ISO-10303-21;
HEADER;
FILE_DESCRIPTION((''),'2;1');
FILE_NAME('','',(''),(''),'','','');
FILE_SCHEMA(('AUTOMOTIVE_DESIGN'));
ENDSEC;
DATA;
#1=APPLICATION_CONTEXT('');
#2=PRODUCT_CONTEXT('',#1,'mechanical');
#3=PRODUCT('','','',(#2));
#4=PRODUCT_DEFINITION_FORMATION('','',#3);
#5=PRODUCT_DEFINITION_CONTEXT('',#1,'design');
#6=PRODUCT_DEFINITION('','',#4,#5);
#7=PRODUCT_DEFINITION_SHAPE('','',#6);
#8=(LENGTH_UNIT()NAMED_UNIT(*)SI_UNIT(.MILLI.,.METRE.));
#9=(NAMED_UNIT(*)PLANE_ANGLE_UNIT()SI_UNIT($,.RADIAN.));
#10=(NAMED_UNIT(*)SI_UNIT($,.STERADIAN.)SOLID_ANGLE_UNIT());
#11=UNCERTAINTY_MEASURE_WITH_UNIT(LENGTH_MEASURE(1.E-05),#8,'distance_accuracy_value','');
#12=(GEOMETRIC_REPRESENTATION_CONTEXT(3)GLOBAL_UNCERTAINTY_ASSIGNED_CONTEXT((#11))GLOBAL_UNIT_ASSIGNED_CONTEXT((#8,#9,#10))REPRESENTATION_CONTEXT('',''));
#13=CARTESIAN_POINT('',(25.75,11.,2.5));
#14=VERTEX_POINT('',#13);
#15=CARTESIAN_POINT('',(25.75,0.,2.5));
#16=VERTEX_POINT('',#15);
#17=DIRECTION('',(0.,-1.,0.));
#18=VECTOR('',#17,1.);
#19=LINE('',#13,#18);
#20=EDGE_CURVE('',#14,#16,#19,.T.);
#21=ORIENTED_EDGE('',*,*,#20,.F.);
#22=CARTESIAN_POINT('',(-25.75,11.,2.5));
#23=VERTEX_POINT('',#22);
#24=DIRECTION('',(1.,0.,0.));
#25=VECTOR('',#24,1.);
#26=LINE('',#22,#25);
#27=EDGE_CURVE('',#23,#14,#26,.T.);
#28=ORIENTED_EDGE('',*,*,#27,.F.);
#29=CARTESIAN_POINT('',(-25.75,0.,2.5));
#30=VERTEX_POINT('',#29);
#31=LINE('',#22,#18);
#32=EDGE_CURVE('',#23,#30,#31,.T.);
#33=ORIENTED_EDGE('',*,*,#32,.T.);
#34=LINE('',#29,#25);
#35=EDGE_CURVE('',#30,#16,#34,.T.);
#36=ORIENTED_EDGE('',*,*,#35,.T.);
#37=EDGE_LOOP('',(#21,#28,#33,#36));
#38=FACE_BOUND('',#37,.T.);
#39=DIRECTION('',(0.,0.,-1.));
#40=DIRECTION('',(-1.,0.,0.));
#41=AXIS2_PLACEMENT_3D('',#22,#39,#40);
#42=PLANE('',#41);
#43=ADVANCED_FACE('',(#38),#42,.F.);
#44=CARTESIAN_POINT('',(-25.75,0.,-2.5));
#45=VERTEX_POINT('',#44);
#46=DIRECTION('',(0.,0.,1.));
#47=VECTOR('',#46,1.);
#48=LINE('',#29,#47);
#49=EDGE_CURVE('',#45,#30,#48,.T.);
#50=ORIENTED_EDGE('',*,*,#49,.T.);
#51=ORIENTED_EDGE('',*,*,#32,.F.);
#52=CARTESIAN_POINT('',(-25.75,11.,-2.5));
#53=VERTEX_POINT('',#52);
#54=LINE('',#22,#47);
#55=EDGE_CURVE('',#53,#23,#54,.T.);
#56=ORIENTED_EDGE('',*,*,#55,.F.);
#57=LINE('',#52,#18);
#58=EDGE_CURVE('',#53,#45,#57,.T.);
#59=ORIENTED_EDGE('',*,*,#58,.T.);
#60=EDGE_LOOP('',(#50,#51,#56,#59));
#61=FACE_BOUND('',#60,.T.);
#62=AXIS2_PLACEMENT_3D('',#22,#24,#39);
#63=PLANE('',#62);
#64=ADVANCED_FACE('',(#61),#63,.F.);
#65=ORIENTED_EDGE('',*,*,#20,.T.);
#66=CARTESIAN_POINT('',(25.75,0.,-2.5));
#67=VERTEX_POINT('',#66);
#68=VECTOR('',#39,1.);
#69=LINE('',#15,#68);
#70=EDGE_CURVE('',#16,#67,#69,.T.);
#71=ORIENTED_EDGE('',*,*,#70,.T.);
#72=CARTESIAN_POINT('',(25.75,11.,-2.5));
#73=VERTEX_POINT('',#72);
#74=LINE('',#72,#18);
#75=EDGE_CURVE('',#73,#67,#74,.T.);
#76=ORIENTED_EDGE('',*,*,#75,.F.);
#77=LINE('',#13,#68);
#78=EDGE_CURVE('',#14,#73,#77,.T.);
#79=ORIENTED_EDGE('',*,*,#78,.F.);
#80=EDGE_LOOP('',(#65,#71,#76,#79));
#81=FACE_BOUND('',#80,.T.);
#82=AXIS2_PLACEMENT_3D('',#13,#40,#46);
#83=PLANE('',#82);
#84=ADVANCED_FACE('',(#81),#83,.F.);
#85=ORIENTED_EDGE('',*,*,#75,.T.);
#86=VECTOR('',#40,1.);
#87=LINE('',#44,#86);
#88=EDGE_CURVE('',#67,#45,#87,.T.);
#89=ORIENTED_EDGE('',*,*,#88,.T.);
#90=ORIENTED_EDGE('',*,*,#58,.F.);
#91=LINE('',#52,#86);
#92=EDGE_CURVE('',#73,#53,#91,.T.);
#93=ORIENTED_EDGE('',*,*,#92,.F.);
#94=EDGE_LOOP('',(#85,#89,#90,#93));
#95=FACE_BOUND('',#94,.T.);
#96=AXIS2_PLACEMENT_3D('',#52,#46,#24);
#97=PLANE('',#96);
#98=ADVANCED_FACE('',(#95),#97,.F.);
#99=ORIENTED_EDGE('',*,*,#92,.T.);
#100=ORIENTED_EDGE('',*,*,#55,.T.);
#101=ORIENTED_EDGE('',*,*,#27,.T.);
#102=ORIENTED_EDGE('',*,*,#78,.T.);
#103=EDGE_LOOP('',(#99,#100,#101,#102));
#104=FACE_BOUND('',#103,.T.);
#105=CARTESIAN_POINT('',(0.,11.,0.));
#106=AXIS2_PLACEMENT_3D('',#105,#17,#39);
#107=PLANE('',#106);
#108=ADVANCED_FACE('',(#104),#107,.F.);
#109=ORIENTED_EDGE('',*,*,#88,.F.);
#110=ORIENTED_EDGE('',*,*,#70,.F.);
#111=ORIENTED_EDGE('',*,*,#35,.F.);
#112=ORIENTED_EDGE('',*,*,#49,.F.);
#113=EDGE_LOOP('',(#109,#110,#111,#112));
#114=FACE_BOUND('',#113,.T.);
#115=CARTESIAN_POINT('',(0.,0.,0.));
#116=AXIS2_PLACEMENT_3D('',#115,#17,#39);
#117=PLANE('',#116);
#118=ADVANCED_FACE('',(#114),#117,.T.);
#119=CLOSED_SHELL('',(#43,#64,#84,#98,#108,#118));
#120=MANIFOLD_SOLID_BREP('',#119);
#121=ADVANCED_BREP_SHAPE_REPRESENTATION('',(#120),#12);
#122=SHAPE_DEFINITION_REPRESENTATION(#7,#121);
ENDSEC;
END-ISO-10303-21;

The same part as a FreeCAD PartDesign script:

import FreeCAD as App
import Part
import Sketcher
from FreeCAD import Vector
Q = App.Units.Quantity


def add_polygon(sketch, points):
    """Adds a closed chain of lines whose ends are joined by coincident constraints."""
    first, n = sketch.GeometryCount, len(points)
    for a, b in zip(points, points[1:] + points[:1]):
        sketch.addGeometry(Part.LineSegment(App.Vector(*a, 0), App.Vector(*b, 0)), False)
    for i in range(n):
        sketch.addConstraint(Sketcher.Constraint("Coincident", first + i, 2, first + (i + 1) % n, 1))

doc = App.newDocument("Part")
body = doc.addObject("PartDesign::Body", "Body")

sketch1 = body.newObject("Sketcher::SketchObject", "Sketch")
sketch1.AttachmentSupport = (doc.getObject("XZ_Plane"), [""])
sketch1.MapMode = "FlatFace"
add_polygon(sketch1, [(-25.75, -2.5), (-25.75, 2.5), (25.75, 2.5), (25.75, -2.5)])
sketch1.addConstraint(Sketcher.Constraint("Vertical", 0))
sketch1.addConstraint(Sketcher.Constraint("Horizontal", 1))
sketch1.addConstraint(Sketcher.Constraint("Vertical", 2))
sketch1.addConstraint(Sketcher.Constraint("Horizontal", 3))
sketch1.addConstraint(Sketcher.Constraint("Symmetric", 0, 2, 2, 2, -1, 1))
sketch1.addConstraint(Sketcher.Constraint("DistanceY", 0, 1, 0, 2, Q("5 mm")))
sketch1.addConstraint(Sketcher.Constraint("DistanceX", 1, 1, 1, 2, Q("51.5 mm")))
pad1 = body.newObject("PartDesign::Pad", "Pad")
pad1.Profile = sketch1
pad1.Length = 11
pad1.Reversed = True

doc.recompute()
